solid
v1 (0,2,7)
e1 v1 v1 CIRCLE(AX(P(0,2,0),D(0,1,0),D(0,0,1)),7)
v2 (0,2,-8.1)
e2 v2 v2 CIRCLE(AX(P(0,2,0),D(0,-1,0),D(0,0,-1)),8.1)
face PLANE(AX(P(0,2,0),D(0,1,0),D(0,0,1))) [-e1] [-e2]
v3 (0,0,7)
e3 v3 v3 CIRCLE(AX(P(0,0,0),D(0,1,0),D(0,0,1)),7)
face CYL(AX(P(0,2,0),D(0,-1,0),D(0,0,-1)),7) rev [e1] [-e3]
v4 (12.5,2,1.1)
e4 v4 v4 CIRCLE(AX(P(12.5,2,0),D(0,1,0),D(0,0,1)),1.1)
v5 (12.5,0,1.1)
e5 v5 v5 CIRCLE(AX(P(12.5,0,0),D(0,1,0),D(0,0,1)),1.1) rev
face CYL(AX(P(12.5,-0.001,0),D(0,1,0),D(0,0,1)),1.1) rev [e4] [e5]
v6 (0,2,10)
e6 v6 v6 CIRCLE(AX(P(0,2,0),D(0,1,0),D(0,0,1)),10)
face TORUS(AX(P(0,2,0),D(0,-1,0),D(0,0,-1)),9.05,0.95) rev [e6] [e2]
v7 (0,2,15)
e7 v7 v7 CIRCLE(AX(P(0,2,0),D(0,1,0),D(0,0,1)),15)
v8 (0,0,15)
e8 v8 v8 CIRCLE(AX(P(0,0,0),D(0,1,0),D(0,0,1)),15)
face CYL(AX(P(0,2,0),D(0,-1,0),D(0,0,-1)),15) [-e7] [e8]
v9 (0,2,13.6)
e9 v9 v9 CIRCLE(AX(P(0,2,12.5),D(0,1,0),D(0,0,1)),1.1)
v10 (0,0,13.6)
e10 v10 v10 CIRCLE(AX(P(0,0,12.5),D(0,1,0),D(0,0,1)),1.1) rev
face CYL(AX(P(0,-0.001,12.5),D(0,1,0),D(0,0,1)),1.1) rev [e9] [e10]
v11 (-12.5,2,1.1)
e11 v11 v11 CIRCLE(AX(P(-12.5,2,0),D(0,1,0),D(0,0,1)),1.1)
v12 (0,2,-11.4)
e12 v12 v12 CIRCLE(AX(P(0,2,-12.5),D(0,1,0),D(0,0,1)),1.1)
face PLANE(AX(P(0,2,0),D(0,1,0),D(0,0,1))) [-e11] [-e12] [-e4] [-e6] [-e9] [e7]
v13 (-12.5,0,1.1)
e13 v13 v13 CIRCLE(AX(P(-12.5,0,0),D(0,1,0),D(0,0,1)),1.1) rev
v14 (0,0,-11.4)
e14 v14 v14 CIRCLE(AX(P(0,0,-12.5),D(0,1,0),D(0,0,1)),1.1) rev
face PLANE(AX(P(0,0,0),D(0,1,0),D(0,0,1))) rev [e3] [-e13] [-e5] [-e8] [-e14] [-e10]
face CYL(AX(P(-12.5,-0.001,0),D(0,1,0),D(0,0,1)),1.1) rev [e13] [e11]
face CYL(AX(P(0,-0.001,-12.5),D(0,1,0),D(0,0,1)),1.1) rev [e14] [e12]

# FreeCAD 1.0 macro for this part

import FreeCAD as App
import Part
import Sketcher

doc = App.newDocument("Part")
body = doc.addObject("PartDesign::Body", "Body")

# Sketch on XZ plane
sketch1 = body.newObject("Sketcher::SketchObject", "Sketch")
sketch1.AttachmentSupport = (doc.getObject("XZ_Plane"), [""])
sketch1.MapMode = "FlatFace"
sketch1.addGeometry(Part.Circle(App.Vector(0, 0, 0), App.Vector(0, 0, 1), 15), False)
sketch1.addGeometry(Part.Circle(App.Vector(0, 0, 0), App.Vector(0, 0, 1), 7), False)
sketch1.addConstraint(Sketcher.Constraint("Coincident", 0, 3, -1, 1))
sketch1.addConstraint(Sketcher.Constraint("Coincident", 1, 3, -1, 1))
sketch1.addConstraint(Sketcher.Constraint("Diameter", 0, 30.0))
sketch1.addConstraint(Sketcher.Constraint("Diameter", 1, 14.0))
pad1 = body.newObject("PartDesign::Pad", "Pad")
pad1.Profile = sketch1
pad1.Length = 2
pad1.Reversed = True

# Sketch on XZ plane
sketch2 = body.newObject("Sketcher::SketchObject", "Sketch001")
sketch2.AttachmentSupport = (doc.getObject("XZ_Plane"), [""])
sketch2.MapMode = "FlatFace"
sketch2.AttachmentOffset = App.Placement(App.Vector(0, 0, -2), App.Rotation())
sketch2.addGeometry(Part.Circle(App.Vector(12.5, 0, 0), App.Vector(0, 0, 1), 1.1), False)
sketch2.addConstraint(Sketcher.Constraint("PointOnObject", 0, 3, -1))
sketch2.addConstraint(Sketcher.Constraint("Diameter", 0, 2.2))
sketch2.addConstraint(Sketcher.Constraint("DistanceX", -1, 1, 0, 3, 12.5))
pocket1 = body.newObject("PartDesign::Pocket", "Pocket")
pocket1.Profile = sketch2
pocket1.Type = "UpToFirst"
pocket1.Reversed = True

# Sketch on XZ plane
sketch3 = body.newObject("Sketcher::SketchObject", "Sketch002")
sketch3.AttachmentSupport = (doc.getObject("XZ_Plane"), [""])
sketch3.MapMode = "FlatFace"
sketch3.AttachmentOffset = App.Placement(App.Vector(0, 0, -2), App.Rotation())
sketch3.addGeometry(Part.Circle(App.Vector(0, 12.5, 0), App.Vector(0, 0, 1), 1.1), False)
sketch3.addConstraint(Sketcher.Constraint("PointOnObject", 0, 3, -2))
sketch3.addConstraint(Sketcher.Constraint("Diameter", 0, 2.2))
sketch3.addConstraint(Sketcher.Constraint("DistanceY", -1, 1, 0, 3, 12.5))
pocket2 = body.newObject("PartDesign::Pocket", "Pocket001")
pocket2.Profile = sketch3
pocket2.Type = "UpToFirst"
pocket2.Reversed = True

# Sketch on XZ plane
sketch4 = body.newObject("Sketcher::SketchObject", "Sketch003")
sketch4.AttachmentSupport = (doc.getObject("XZ_Plane"), [""])
sketch4.MapMode = "FlatFace"
sketch4.AttachmentOffset = App.Placement(App.Vector(0, 0, -2), App.Rotation())
sketch4.addGeometry(Part.Circle(App.Vector(-12.5, 0, 0), App.Vector(0, 0, 1), 1.1), False)
sketch4.addConstraint(Sketcher.Constraint("PointOnObject", 0, 3, -1))
sketch4.addConstraint(Sketcher.Constraint("Diameter", 0, 2.2))
sketch4.addConstraint(Sketcher.Constraint("DistanceX", 0, 3, -1, 1, 12.5))
pocket3 = body.newObject("PartDesign::Pocket", "Pocket002")
pocket3.Profile = sketch4
pocket3.Type = "UpToFirst"
pocket3.Reversed = True

# Sketch on XZ plane
sketch5 = body.newObject("Sketcher::SketchObject", "Sketch004")
sketch5.AttachmentSupport = (doc.getObject("XZ_Plane"), [""])
sketch5.MapMode = "FlatFace"
sketch5.AttachmentOffset = App.Placement(App.Vector(0, 0, -2), App.Rotation())
sketch5.addGeometry(Part.Circle(App.Vector(0, -12.5, 0), App.Vector(0, 0, 1), 1.1), False)
sketch5.addConstraint(Sketcher.Constraint("PointOnObject", 0, 3, -2))
sketch5.addConstraint(Sketcher.Constraint("Diameter", 0, 2.2))
sketch5.addConstraint(Sketcher.Constraint("DistanceY", 0, 3, -1, 1, 12.5))
pocket4 = body.newObject("PartDesign::Pocket", "Pocket003")
pocket4.Profile = sketch5
pocket4.Type = "UpToFirst"
pocket4.Reversed = True

# Sketch on XY plane
sketch6 = body.newObject("Sketcher::SketchObject", "Sketch005")
sketch6.AttachmentSupport = (doc.getObject("XY_Plane"), [""])
sketch6.MapMode = "FlatFace"
sketch6.addGeometry(Part.Circle(App.Vector(9.1, 2, 0), App.Vector(0, 0, 1), 0.9), False)
sketch6.addConstraint(Sketcher.Constraint("Diameter", 0, 1.9))
sketch6.addConstraint(Sketcher.Constraint("DistanceY", -1, 1, 0, 3, 2.0))
sketch6.addConstraint(Sketcher.Constraint("DistanceX", -1, 1, 0, 3, 9.05))
groove = body.newObject("PartDesign::Groove", "Groove")
groove.Profile = sketch6
groove.ReferenceAxis = (sketch6, ["V_Axis"])
groove.Angle = 360

doc.recompute()
